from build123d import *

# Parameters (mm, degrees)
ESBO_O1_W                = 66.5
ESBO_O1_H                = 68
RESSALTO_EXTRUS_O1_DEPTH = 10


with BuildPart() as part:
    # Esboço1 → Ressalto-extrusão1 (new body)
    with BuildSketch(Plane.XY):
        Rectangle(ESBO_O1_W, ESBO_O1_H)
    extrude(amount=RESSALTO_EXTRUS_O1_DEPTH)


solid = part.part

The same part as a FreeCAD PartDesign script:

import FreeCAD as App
import Part
import Sketcher
from FreeCAD import Vector

doc = App.newDocument("Part")
params = doc.addObject("Spreadsheet::Sheet", "Params")
for row, (alias, value) in enumerate([
    ("sketch1_height", "68 mm"),
    ("sketch1_width", "66.5 mm"),
    ("pad1_length", "10 mm"),
], start=1):
    params.set(f"A{row}", alias)
    params.set(f"B{row}", "=" + value)
    params.setAlias(f"B{row}", alias)

body = doc.addObject("PartDesign::Body", "Body")

sketch1 = body.newObject("Sketcher::SketchObject", "Sketch")
sketch1.AttachmentSupport = (doc.getObject("XY_Plane"), [""])
sketch1.MapMode = "FlatFace"
sketch1.addGeometry([
    Part.LineSegment(Vector(-33, 34, 0), Vector(-33, -34, 0)),
    Part.LineSegment(Vector(-33, -34, 0), Vector(33, -34, 0)),
    Part.LineSegment(Vector(33, -34, 0), Vector(33, 34, 0)),
    Part.LineSegment(Vector(33, 34, 0), Vector(-33, 34, 0)),
], False)
sketch1.addConstraint([
    Sketcher.Constraint("Coincident", 0, 2, 1, 1),
    Sketcher.Constraint("Coincident", 1, 2, 2, 1),
    Sketcher.Constraint("Coincident", 2, 2, 3, 1),
    Sketcher.Constraint("Coincident", 3, 2, 0, 1),
    Sketcher.Constraint("Vertical", 0),
    Sketcher.Constraint("Horizontal", 1),
    Sketcher.Constraint("Vertical", 2),
    Sketcher.Constraint("Horizontal", 3),
    Sketcher.Constraint("Symmetric", 0, 2, 2, 2, -1, 1),
    Sketcher.Constraint("DistanceY", 0, 2, 0, 1, 68.0),
    Sketcher.Constraint("DistanceX", 1, 1, 1, 2, 66.5),
])
sketch1.setExpression("Constraints[9]", "Params.sketch1_height")
sketch1.setExpression("Constraints[10]", "Params.sketch1_width")
pad1 = body.newObject("PartDesign::Pad", "Pad")
pad1.Profile = sketch1
pad1.setExpression("Length", "Params.pad1_length")

doc.recompute()
